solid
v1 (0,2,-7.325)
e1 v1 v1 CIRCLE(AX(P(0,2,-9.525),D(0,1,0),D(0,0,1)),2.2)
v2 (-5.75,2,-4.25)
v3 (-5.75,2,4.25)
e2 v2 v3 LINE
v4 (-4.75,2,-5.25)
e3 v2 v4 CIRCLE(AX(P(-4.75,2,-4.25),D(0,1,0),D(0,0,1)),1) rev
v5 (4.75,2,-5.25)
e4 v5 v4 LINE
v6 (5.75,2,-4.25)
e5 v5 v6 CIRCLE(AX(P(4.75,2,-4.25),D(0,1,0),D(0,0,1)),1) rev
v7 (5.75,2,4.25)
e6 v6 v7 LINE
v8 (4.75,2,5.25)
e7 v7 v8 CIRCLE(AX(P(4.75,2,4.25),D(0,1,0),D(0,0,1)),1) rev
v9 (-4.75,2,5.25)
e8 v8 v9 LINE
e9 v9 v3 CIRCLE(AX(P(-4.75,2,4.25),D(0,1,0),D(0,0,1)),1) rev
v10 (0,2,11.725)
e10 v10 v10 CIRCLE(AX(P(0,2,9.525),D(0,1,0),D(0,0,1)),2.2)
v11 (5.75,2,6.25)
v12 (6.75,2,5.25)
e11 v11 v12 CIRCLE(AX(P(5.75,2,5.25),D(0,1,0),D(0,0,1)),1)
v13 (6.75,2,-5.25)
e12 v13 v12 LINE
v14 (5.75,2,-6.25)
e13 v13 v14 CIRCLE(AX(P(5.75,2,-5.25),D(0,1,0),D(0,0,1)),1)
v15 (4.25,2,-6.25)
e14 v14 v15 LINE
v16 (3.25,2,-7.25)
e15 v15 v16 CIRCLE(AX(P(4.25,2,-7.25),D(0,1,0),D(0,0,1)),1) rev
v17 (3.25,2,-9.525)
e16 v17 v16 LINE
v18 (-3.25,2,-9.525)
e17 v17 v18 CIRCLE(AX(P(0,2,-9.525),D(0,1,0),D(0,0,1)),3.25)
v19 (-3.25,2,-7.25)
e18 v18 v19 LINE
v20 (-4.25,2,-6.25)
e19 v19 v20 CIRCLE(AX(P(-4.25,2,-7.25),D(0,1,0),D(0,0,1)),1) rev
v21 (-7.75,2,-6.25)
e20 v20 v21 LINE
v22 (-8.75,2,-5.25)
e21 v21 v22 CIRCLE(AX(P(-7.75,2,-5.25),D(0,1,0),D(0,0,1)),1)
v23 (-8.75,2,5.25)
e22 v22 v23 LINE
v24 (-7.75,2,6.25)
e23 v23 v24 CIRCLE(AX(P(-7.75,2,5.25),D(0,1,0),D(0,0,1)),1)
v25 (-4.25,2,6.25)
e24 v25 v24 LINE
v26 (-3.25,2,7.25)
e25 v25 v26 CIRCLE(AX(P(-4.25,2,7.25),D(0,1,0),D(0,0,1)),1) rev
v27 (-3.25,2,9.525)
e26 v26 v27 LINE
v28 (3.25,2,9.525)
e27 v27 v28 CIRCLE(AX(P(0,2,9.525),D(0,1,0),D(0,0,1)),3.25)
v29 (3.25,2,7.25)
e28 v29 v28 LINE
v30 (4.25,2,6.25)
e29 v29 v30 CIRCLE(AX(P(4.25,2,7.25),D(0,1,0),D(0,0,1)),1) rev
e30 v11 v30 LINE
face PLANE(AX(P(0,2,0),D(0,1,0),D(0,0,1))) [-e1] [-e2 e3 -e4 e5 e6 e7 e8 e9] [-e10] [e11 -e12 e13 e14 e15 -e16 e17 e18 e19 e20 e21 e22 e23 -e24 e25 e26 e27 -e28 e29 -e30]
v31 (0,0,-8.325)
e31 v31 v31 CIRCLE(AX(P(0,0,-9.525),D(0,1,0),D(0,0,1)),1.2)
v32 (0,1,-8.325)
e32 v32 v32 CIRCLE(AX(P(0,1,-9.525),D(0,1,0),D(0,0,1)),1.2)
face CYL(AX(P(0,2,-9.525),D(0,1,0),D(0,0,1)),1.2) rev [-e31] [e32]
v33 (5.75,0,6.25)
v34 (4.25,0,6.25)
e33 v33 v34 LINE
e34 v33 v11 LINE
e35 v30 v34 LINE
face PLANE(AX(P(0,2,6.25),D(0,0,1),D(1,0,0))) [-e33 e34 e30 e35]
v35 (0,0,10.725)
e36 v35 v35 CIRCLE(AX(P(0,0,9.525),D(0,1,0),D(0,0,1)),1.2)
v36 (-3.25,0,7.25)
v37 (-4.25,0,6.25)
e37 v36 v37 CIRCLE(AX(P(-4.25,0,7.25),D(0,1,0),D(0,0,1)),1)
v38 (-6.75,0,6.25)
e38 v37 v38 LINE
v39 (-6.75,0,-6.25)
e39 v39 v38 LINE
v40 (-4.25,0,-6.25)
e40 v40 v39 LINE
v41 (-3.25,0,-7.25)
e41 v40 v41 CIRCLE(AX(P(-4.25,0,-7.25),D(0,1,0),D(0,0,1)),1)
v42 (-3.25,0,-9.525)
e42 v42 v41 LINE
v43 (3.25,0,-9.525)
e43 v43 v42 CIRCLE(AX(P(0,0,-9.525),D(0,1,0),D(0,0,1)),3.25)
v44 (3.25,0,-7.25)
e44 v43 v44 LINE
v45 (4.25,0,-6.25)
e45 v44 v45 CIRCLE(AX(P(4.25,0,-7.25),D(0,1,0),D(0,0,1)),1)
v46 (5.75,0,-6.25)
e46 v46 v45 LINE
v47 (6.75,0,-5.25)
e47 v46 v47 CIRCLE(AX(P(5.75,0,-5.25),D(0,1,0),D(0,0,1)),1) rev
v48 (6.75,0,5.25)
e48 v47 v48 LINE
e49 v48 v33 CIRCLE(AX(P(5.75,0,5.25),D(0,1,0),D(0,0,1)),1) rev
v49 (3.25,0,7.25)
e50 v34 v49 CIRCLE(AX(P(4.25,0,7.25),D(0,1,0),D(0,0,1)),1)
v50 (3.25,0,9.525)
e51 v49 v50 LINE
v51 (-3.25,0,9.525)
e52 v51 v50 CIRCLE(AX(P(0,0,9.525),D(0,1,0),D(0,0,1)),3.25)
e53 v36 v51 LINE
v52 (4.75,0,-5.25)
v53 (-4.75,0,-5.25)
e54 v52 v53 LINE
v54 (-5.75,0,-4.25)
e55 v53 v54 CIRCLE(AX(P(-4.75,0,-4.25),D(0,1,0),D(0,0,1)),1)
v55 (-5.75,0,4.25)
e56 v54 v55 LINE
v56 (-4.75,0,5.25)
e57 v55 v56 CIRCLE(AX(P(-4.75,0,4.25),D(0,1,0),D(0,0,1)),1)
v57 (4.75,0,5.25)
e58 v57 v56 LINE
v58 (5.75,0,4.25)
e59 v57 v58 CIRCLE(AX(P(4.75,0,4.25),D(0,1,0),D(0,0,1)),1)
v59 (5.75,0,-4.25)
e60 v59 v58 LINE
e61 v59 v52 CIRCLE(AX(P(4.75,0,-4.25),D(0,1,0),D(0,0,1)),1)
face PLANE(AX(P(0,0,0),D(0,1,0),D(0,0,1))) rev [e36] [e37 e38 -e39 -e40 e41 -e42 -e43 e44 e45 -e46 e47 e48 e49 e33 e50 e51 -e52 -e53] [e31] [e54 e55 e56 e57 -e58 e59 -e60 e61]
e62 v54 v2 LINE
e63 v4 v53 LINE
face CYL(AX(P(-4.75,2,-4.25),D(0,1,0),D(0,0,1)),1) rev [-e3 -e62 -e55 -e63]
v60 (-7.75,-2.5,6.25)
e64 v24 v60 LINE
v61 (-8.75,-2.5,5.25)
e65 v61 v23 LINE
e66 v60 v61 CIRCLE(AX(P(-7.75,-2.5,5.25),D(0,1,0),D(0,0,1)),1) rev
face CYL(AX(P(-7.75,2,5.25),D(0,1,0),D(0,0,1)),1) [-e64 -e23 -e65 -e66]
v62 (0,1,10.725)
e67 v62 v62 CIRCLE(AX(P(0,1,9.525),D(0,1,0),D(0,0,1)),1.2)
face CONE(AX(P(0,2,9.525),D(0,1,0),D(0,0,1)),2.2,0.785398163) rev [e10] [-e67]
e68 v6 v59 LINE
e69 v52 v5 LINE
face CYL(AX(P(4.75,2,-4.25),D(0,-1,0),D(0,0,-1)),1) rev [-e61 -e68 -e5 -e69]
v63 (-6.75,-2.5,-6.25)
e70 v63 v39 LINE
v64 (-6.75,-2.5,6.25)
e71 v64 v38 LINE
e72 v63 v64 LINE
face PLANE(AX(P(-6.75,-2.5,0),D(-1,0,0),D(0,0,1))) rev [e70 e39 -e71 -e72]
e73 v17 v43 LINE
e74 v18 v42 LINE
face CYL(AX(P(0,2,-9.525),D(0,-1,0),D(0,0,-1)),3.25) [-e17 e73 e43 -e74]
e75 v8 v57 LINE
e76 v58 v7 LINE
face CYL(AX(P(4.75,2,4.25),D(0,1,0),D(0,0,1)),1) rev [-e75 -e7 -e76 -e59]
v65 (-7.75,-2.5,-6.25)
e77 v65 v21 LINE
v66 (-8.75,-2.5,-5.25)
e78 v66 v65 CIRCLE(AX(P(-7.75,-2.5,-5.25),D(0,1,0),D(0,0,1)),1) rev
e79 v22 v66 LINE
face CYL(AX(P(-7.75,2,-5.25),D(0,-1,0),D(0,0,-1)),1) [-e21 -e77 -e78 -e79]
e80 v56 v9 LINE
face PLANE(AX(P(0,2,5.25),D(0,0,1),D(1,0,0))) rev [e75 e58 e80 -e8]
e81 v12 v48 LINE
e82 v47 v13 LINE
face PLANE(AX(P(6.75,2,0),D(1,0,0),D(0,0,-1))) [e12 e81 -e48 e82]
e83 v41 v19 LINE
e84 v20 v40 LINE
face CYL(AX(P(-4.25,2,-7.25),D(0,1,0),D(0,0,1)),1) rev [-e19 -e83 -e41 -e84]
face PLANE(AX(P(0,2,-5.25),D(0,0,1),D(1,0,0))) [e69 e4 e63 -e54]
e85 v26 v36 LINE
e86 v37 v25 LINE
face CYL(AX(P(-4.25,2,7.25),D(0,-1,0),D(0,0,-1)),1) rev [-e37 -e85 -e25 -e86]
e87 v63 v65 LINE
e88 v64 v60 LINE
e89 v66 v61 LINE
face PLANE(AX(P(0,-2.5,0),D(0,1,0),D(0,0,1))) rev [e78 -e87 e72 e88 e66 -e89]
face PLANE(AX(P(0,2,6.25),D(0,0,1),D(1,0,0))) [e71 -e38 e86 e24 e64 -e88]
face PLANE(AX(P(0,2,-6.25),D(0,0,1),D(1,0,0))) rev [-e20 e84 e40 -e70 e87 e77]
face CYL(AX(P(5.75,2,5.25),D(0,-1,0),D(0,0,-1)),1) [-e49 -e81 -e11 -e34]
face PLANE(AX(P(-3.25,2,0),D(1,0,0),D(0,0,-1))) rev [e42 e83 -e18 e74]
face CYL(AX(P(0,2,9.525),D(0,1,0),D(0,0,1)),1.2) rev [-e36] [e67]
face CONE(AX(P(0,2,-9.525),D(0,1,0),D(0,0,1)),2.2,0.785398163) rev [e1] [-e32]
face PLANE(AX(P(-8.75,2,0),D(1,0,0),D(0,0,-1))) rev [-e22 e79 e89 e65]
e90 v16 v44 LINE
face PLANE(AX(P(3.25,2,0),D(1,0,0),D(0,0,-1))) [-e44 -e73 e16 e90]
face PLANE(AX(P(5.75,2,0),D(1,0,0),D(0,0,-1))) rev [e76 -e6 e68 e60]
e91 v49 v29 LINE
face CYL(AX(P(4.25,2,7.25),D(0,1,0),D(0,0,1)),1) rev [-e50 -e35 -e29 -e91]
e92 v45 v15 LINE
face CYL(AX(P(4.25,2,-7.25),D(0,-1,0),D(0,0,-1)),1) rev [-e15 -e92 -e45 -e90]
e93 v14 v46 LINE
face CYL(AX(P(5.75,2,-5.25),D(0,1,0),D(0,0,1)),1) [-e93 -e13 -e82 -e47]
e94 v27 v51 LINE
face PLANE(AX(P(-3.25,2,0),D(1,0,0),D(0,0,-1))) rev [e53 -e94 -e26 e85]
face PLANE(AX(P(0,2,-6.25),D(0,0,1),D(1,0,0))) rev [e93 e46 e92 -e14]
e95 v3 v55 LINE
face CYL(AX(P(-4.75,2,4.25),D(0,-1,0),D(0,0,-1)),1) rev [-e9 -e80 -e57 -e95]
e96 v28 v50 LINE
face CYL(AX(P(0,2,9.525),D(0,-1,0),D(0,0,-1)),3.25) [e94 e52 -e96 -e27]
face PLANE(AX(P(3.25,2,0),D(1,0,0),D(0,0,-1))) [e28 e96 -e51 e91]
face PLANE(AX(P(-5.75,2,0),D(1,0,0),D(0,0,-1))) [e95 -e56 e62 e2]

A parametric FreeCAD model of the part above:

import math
import FreeCAD as App
import Part
import Sketcher
Q = App.Units.Quantity


def edges_at(feature, points):
    """Names of the edges that pass closest to the given points."""
    edges = feature.Shape.Edges
    near = lambda p: min(range(len(edges)), key=lambda i: edges[i].distToShape(Part.Vertex(*p))[0])
    return sorted({f"Edge{near(p) + 1}" for p in points})


def add_polygon(sketch, points):
    """Adds a closed chain of lines whose ends are joined by coincident constraints."""
    first, n = sketch.GeometryCount, len(points)
    for a, b in zip(points, points[1:] + points[:1]):
        sketch.addGeometry(Part.LineSegment(App.Vector(*a, 0), App.Vector(*b, 0)), False)
    for i in range(n):
        sketch.addConstraint(Sketcher.Constraint("Coincident", first + i, 2, first + (i + 1) % n, 1))

doc = App.newDocument("Part")
body = doc.addObject("PartDesign::Body", "Body")

# Sketch on XZ plane
sketch1 = body.newObject("Sketcher::SketchObject", "Sketch")
sketch1.AttachmentSupport = (doc.getObject("XZ_Plane"), [""])
sketch1.MapMode = "FlatFace"
sketch1.addGeometry(Part.LineSegment(App.Vector(-3.2, -6.2, 0), App.Vector(-8.8, -6.2, 0)), False)  # 0
sketch1.addGeometry(Part.LineSegment(App.Vector(-8.8, -6.2, 0), App.Vector(-8.8, 6.2, 0)), False)  # 1
sketch1.addGeometry(Part.LineSegment(App.Vector(-8.8, 6.2, 0), App.Vector(-3.2, 6.2, 0)), False)  # 2
sketch1.addGeometry(Part.LineSegment(App.Vector(-3.2, 6.2, 0), App.Vector(-3.2, 9.5, 0)), False)  # 3
sketch1.addGeometry(Part.ArcOfCircle(Part.Circle(App.Vector(0, 9.5, 0), App.Vector(0, 0, 1), 3.2), math.radians(0), math.radians(180)), False)  # 4
sketch1.addGeometry(Part.LineSegment(App.Vector(3.2, 9.5, 0), App.Vector(3.2, 6.2, 0)), False)  # 5
sketch1.addGeometry(Part.LineSegment(App.Vector(3.2, 6.2, 0), App.Vector(6.8, 6.2, 0)), False)  # 6
sketch1.addGeometry(Part.LineSegment(App.Vector(6.8, 6.2, 0), App.Vector(6.8, -6.2, 0)), False)  # 7
sketch1.addGeometry(Part.LineSegment(App.Vector(6.8, -6.2, 0), App.Vector(3.2, -6.2, 0)), False)  # 8
sketch1.addGeometry(Part.LineSegment(App.Vector(3.2, -6.2, 0), App.Vector(3.2, -9.5, 0)), False)  # 9
sketch1.addGeometry(Part.ArcOfCircle(Part.Circle(App.Vector(0, -9.5, 0), App.Vector(0, 0, 1), 3.2), math.radians(180), math.radians(360)), False)  # 10
sketch1.addGeometry(Part.LineSegment(App.Vector(-3.2, -9.5, 0), App.Vector(-3.2, -6.2, 0)), False)  # 11
add_polygon(sketch1, [(5.8, -5.2), (5.8, 5.2), (-5.8, 5.2), (-5.8, -5.2)])  # lines 12-15
sketch1.addConstraint([
    Sketcher.Constraint("Coincident", 0, 2, 1, 1),
    Sketcher.Constraint("Coincident", 1, 2, 2, 1),
    Sketcher.Constraint("Coincident", 2, 2, 3, 1),
    Sketcher.Constraint("Tangent", 3, 2, 4, 2),
    Sketcher.Constraint("Tangent", 4, 1, 5, 1),
    Sketcher.Constraint("Coincident", 5, 2, 6, 1),
    Sketcher.Constraint("Coincident", 6, 2, 7, 1),
    Sketcher.Constraint("Coincident", 7, 2, 8, 1),
    Sketcher.Constraint("Coincident", 8, 2, 9, 1),
    Sketcher.Constraint("Tangent", 9, 2, 10, 2),
    Sketcher.Constraint("Tangent", 10, 1, 11, 1),
    Sketcher.Constraint("Coincident", 11, 2, 0, 1),
    Sketcher.Constraint("Horizontal", 0),
    Sketcher.Constraint("Vertical", 1),
    Sketcher.Constraint("Horizontal", 2),
    Sketcher.Constraint("Vertical", 3),
    Sketcher.Constraint("Vertical", 5),
    Sketcher.Constraint("Horizontal", 6),
    Sketcher.Constraint("Vertical", 7),
    Sketcher.Constraint("Horizontal", 8),
    Sketcher.Constraint("Vertical", 9),
    Sketcher.Constraint("Vertical", 11),
    Sketcher.Constraint("Vertical", 12),
    Sketcher.Constraint("Horizontal", 13),
    Sketcher.Constraint("Vertical", 14),
    Sketcher.Constraint("Horizontal", 15),
    Sketcher.Constraint("Equal", 4, 10),
    Sketcher.Constraint("Symmetric", 4, 3, 10, 3, -1, 1),
    Sketcher.Constraint("Symmetric", 12, 2, 14, 2, -1, 1),
    Sketcher.Constraint("Symmetric", 2, 2, 5, 2, -2),
    Sketcher.Constraint("Horizontal", 0, 2, 7, 2),
    Sketcher.Constraint("Equal", 5, 9),
    Sketcher.Constraint("Radius", 4, 3.25),
    Sketcher.Constraint("DistanceX", 0, 2, 0, 1, 5.5),
    Sketcher.Constraint("DistanceX", 6, 1, 6, 2, 3.5),
    Sketcher.Constraint("DistanceX", 13, 2, 13, 1, 11.5),
    Sketcher.Constraint("DistanceY", 1, 1, 1, 2, 12.5),
    Sketcher.Constraint("DistanceY", 12, 1, 12, 2, 10.5),
    Sketcher.Constraint("DistanceY", 3, 1, 3, 2, 3.275),
])
pad1 = body.newObject("PartDesign::Pad", "Pad")
pad1.Profile = sketch1
pad1.Length = 2
pad1.Reversed = True

# Sketch on XZ plane
sketch2 = body.newObject("Sketcher::SketchObject", "Sketch001")
sketch2.AttachmentSupport = (doc.getObject("XZ_Plane"), [""])
sketch2.MapMode = "FlatFace"
add_polygon(sketch2, [(-8.8, -6.2), (-8.8, 6.2), (-6.8, 6.2), (-6.8, -6.2)])  # lines 0-3
sketch2.addConstraint([
    Sketcher.Constraint("Vertical", 0),
    Sketcher.Constraint("Horizontal", 1),
    Sketcher.Constraint("Vertical", 2),
    Sketcher.Constraint("Horizontal", 3),
    Sketcher.Constraint("DistanceX", 1, 1, 1, 2, 2.0),
    Sketcher.Constraint("DistanceY", 0, 1, 0, 2, 12.5),
    Sketcher.Constraint("DistanceX", 0, 2, -1, 1, 8.75),
    Sketcher.Constraint("DistanceY", -1, 1, 0, 2, 6.25),
])
pad2 = body.newObject("PartDesign::Pad", "Pad001")
pad2.Profile = sketch2
pad2.Length = 2.5

# Sketch on YZ plane
sketch3 = body.newObject("Sketcher::SketchObject", "Sketch002")
sketch3.AttachmentSupport = (doc.getObject("YZ_Plane"), [""])
sketch3.MapMode = "FlatFace"
add_polygon(sketch3, [(-2.5, -9.5), (2, -9.5), (2, -7.3), (1, -8.3), (-2.5, -8.3)])  # lines 0-4
sketch3.addGeometry(Part.LineSegment(App.Vector(2, -9.5, 0), App.Vector(-2.5, -9.5, 0)), True)  # axis
sketch3.addConstraint([
    Sketcher.Constraint("Horizontal", 0),
    Sketcher.Constraint("Vertical", 1),
    Sketcher.Constraint("Horizontal", 3),
    Sketcher.Constraint("Vertical", 4),
    Sketcher.Constraint("Horizontal", 5),
    Sketcher.Constraint("Coincident", 5, 1, 0, 2),
    Sketcher.Constraint("Vertical", 3, 2, 5, 2),
    Sketcher.Constraint("Angle", 2, Q("-135 deg")),
    Sketcher.Constraint("DistanceX", 0, 1, 0, 2, 4.5),
    Sketcher.Constraint("DistanceX", 3, 2, 3, 1, 3.5),
    Sketcher.Constraint("DistanceY", 1, 1, 1, 2, 2.2),
    Sketcher.Constraint("DistanceX", -1, 1, 0, 2, 2.0),
    Sketcher.Constraint("DistanceY", 0, 2, -1, 1, 9.525),
])
groove = body.newObject("PartDesign::Groove", "Groove")
groove.Profile = sketch3
groove.ReferenceAxis = (sketch3, ["Axis0"])
groove.Angle = 360
doc.recompute()

linearpattern = body.newObject("PartDesign::LinearPattern", "LinearPattern")
linearpattern.Originals = [groove]
linearpattern.Direction = (doc.getObject("Z_Axis"), [""])
linearpattern.Mode = "offset"
linearpattern.Offset = 19.05
linearpattern.Occurrences = 2
body.Tip = linearpattern
doc.recompute()

linearpattern2 = body.newObject("PartDesign::LinearPattern", "LinearPattern001")
linearpattern2.Originals = [groove]
linearpattern2.Direction = (doc.getObject("Z_Axis"), [""])
linearpattern2.Mode = "offset"
linearpattern2.Offset = 19.05
linearpattern2.Occurrences = 2
body.Tip = linearpattern2
doc.recompute()

fillet = body.newObject("PartDesign::Fillet", "Fillet")
fillet.Base = (linearpattern2, edges_at(linearpattern2, [
    (5.75, 1, -5.25),
    (-5.75, 1, -5.25),
    (-5.75, 1, 5.25),
    (5.75, 1, 5.25),
    (-8.75, -0.25, 6.25),
    (-8.75, -0.25, -6.25),
    (-3.25, 1, -6.25),
    (3.25, 1, -6.25),
    (6.75, 1, -6.25),
    (6.75, 1, 6.25),
    (3.25, 1, 6.25),
    (-3.25, 1, 6.25),
]))
fillet.Radius = 1

doc.recompute()
